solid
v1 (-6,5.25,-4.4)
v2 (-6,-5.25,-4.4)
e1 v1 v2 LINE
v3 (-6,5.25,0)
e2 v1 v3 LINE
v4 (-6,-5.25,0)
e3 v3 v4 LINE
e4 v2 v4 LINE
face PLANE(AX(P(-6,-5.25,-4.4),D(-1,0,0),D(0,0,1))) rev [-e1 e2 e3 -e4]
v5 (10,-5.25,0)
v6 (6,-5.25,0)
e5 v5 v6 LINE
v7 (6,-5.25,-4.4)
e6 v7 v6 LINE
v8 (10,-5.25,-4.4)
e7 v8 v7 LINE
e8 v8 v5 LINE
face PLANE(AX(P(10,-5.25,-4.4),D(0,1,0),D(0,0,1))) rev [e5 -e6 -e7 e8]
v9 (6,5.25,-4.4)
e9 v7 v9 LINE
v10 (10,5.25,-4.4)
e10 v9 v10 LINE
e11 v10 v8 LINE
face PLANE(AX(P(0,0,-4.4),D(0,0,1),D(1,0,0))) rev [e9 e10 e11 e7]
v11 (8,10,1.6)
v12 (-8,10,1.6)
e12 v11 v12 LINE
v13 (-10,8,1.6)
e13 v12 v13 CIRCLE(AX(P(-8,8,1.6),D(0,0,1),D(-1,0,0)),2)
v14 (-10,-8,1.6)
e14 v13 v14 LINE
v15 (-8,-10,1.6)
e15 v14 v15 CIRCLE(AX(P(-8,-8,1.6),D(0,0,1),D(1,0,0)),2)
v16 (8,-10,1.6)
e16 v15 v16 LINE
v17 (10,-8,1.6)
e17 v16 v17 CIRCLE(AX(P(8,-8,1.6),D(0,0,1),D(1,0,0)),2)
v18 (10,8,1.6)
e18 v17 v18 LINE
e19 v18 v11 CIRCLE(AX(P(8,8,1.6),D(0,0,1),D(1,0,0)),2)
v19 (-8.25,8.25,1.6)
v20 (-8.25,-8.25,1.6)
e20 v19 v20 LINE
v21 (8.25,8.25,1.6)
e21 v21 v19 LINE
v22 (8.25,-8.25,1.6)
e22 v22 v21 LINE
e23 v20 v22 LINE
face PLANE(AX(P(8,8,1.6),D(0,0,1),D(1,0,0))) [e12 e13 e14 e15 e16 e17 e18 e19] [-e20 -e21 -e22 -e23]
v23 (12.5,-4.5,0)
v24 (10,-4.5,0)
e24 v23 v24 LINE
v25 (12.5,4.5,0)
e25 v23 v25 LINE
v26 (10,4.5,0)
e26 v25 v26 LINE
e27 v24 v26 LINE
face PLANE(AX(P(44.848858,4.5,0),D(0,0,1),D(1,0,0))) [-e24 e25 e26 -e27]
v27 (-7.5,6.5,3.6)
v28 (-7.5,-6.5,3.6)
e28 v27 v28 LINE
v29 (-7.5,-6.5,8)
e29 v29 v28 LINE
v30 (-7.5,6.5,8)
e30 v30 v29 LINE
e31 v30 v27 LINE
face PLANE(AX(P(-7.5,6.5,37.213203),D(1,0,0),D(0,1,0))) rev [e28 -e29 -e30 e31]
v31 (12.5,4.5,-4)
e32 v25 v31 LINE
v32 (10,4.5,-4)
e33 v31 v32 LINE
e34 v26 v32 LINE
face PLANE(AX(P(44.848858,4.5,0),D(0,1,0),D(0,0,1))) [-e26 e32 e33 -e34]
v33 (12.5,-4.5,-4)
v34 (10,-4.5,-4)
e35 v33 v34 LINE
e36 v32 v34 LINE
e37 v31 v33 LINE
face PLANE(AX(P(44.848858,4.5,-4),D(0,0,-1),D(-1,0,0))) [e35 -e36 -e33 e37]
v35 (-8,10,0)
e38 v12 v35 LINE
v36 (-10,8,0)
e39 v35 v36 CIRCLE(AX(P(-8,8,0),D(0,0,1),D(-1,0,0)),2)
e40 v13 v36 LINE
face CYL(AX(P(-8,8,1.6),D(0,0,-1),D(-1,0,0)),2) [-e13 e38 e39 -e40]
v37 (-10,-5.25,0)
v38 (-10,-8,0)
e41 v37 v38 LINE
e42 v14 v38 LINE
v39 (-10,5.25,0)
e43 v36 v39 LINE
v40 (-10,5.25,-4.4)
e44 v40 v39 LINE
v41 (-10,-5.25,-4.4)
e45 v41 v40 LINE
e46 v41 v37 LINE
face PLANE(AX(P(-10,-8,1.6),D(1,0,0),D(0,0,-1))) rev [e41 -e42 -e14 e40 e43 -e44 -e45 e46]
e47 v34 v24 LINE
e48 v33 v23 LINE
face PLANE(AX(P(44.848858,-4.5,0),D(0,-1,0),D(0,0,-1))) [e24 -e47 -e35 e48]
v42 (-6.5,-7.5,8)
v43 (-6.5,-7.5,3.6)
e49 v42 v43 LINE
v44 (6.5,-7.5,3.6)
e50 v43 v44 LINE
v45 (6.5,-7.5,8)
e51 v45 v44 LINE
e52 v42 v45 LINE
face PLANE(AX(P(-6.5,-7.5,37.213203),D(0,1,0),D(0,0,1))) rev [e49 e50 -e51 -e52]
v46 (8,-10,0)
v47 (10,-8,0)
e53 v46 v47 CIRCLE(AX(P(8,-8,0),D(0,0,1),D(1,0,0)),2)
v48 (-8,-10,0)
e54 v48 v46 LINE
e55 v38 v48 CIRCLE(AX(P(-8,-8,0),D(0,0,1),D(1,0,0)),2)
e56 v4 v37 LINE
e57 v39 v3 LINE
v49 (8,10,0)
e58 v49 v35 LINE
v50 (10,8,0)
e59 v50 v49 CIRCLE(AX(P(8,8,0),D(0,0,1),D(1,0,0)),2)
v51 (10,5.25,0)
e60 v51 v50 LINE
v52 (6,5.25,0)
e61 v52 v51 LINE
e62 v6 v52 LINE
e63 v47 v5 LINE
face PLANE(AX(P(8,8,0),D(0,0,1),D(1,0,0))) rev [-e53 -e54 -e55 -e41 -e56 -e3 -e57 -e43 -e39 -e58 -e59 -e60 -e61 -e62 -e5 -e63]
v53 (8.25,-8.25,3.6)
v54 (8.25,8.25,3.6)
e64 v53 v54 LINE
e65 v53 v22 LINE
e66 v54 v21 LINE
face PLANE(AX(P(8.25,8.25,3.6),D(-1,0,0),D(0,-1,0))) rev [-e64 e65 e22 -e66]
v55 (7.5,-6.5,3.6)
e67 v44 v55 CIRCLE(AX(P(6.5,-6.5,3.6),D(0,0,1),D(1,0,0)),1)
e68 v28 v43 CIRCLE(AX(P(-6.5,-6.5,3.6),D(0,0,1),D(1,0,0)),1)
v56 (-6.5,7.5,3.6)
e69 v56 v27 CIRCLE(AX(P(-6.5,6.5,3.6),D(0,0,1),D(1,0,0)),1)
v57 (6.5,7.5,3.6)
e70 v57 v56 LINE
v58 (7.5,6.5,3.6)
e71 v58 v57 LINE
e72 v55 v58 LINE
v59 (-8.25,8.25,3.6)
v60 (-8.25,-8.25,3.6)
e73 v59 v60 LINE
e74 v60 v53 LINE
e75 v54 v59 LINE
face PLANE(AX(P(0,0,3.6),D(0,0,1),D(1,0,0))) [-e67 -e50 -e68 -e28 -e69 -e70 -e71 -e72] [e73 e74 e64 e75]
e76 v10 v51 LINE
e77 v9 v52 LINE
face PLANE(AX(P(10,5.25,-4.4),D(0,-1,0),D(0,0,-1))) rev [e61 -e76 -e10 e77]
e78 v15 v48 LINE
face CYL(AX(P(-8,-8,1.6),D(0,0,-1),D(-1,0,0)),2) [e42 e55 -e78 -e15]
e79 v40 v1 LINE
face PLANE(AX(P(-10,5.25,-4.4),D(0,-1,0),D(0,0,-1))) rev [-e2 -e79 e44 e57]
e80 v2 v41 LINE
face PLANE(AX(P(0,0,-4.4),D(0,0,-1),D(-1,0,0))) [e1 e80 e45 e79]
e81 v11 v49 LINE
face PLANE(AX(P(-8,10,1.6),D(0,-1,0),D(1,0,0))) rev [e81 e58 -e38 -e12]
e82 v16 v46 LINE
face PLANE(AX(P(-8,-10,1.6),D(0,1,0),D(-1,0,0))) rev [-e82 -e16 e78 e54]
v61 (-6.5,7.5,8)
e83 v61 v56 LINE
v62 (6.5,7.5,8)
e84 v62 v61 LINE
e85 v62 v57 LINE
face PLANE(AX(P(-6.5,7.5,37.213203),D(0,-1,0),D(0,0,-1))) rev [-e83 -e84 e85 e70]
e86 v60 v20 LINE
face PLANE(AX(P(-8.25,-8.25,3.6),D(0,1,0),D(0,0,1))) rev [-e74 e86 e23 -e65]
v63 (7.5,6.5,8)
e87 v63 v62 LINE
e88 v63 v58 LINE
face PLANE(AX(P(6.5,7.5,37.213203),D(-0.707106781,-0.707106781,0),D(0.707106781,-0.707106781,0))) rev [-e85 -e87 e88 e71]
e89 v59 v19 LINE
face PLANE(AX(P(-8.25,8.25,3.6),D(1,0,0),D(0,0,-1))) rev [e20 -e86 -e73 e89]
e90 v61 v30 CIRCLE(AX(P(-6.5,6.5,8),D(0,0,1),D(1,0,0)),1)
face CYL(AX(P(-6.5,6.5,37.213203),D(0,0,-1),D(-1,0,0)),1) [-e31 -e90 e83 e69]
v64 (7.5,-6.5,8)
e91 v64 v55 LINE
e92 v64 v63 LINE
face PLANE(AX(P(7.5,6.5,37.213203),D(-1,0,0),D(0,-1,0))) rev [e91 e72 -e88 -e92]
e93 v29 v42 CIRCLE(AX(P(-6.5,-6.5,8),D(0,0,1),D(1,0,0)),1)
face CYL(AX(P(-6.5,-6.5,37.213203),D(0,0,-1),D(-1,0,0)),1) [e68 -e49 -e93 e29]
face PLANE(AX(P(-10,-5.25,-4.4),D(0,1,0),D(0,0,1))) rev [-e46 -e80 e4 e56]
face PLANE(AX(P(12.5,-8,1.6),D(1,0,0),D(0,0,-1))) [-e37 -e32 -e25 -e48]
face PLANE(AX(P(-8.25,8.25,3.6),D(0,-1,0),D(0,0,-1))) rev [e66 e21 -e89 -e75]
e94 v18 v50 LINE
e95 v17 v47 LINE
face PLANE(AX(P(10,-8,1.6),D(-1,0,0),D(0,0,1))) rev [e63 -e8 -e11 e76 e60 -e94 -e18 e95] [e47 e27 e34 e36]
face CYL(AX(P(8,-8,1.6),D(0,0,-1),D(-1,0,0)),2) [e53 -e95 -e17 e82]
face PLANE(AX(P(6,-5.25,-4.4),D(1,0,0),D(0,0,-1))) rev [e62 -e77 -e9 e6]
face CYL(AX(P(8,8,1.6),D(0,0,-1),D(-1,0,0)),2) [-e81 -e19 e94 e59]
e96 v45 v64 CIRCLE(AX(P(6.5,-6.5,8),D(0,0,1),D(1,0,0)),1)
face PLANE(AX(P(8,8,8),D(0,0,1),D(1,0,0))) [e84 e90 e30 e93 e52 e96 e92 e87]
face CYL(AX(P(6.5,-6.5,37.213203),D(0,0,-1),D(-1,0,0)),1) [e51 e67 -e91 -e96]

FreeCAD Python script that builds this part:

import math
import FreeCAD as App
import Part
import Sketcher
Q = App.Units.Quantity


def add_polygon(sketch, points):
    """Adds a closed chain of lines whose ends are joined by coincident constraints."""
    first, n = sketch.GeometryCount, len(points)
    for a, b in zip(points, points[1:] + points[:1]):
        sketch.addGeometry(Part.LineSegment(App.Vector(*a, 0), App.Vector(*b, 0)), False)
    for i in range(n):
        sketch.addConstraint(Sketcher.Constraint("Coincident", first + i, 2, first + (i + 1) % n, 1))

doc = App.newDocument("Part")
body = doc.addObject("PartDesign::Body", "Body")

sketch1 = body.newObject("Sketcher::SketchObject", "Sketch")
sketch1.AttachmentSupport = (doc.getObject("XY_Plane"), [""])
sketch1.MapMode = "FlatFace"
sketch1.addGeometry([
    Part.LineSegment(App.Vector(-10, 8, 0), App.Vector(-10, -8, 0)),
    Part.ArcOfCircle(Part.Circle(App.Vector(-8, -8, 0), App.Vector(0, 0, 1), 2), math.radians(-180), math.radians(-90)),
    Part.LineSegment(App.Vector(-8, -10, 0), App.Vector(8, -10, 0)),
    Part.ArcOfCircle(Part.Circle(App.Vector(8, -8, 0), App.Vector(0, 0, 1), 2), math.radians(-90), math.radians(0)),
    Part.LineSegment(App.Vector(10, -8, 0), App.Vector(10, 8, 0)),
    Part.ArcOfCircle(Part.Circle(App.Vector(8, 8, 0), App.Vector(0, 0, 1), 2), math.radians(0), math.radians(90)),
    Part.LineSegment(App.Vector(8, 10, 0), App.Vector(-8, 10, 0)),
    Part.ArcOfCircle(Part.Circle(App.Vector(-8, 8, 0), App.Vector(0, 0, 1), 2), math.radians(90), math.radians(180)),
], False)
sketch1.addConstraint([
    Sketcher.Constraint("Tangent", 0, 2, 1, 1),
    Sketcher.Constraint("Tangent", 1, 2, 2, 1),
    Sketcher.Constraint("Tangent", 2, 2, 3, 1),
    Sketcher.Constraint("Tangent", 3, 2, 4, 1),
    Sketcher.Constraint("Tangent", 4, 2, 5, 1),
    Sketcher.Constraint("Tangent", 5, 2, 6, 1),
    Sketcher.Constraint("Tangent", 6, 2, 7, 1),
    Sketcher.Constraint("Tangent", 7, 2, 0, 1),
    Sketcher.Constraint("Vertical", 0),
    Sketcher.Constraint("Horizontal", 2),
    Sketcher.Constraint("Vertical", 4),
    Sketcher.Constraint("Horizontal", 6),
    Sketcher.Constraint("Equal", 1, 3),
    Sketcher.Constraint("Equal", 3, 5),
    Sketcher.Constraint("Equal", 5, 7),
    Sketcher.Constraint("Symmetric", 1, 3, 5, 3, -1, 1),
    Sketcher.Constraint("Equal", 6, 0),
    Sketcher.Constraint("Radius", 1, Q("2 mm")),
    Sketcher.Constraint("DistanceX", 2, 1, 2, 2, Q("16 mm")),
])
pad1 = body.newObject("PartDesign::Pad", "Pad")
pad1.Profile = sketch1
pad1.Length = 1.6

sketch2 = body.newObject("Sketcher::SketchObject", "Sketch001")
sketch2.AttachmentSupport = (doc.getObject("XY_Plane"), [""])
sketch2.MapMode = "FlatFace"
sketch2.AttachmentOffset = App.Placement(App.Vector(0, 0, 1.6), App.Rotation())
add_polygon(sketch2, [(-8, 8), (-8, -8), (8, -8), (8, 8)])
sketch2.addConstraint([
    Sketcher.Constraint("Vertical", 0),
    Sketcher.Constraint("Horizontal", 1),
    Sketcher.Constraint("Vertical", 2),
    Sketcher.Constraint("Horizontal", 3),
    Sketcher.Constraint("Symmetric", 0, 2, 2, 2, -1, 1),
    Sketcher.Constraint("Equal", 3, 0),
    Sketcher.Constraint("DistanceX", 1, 1, 1, 2, Q("16.5 mm")),
])
pad2 = body.newObject("PartDesign::Pad", "Pad001")
pad2.Profile = sketch2
pad2.Length = 2

sketch3 = body.newObject("Sketcher::SketchObject", "Sketch002")
sketch3.AttachmentSupport = (doc.getObject("XY_Plane"), [""])
sketch3.MapMode = "FlatFace"
sketch3.AttachmentOffset = App.Placement(App.Vector(0, 0, 3.6), App.Rotation())
sketch3.addGeometry([
    Part.LineSegment(App.Vector(7.5, 6.5, 0), App.Vector(6.5, 7.5, 0)),
    Part.LineSegment(App.Vector(6.5, 7.5, 0), App.Vector(-6.5, 7.5, 0)),
    Part.ArcOfCircle(Part.Circle(App.Vector(-6.5, 6.5, 0), App.Vector(0, 0, 1), 1), math.radians(90), math.radians(180)),
    Part.LineSegment(App.Vector(-7.5, 6.5, 0), App.Vector(-7.5, -6.5, 0)),
    Part.ArcOfCircle(Part.Circle(App.Vector(-6.5, -6.5, 0), App.Vector(0, 0, 1), 1), math.radians(-180), math.radians(-90)),
    Part.LineSegment(App.Vector(-6.5, -7.5, 0), App.Vector(6.5, -7.5, 0)),
    Part.ArcOfCircle(Part.Circle(App.Vector(6.5, -6.5, 0), App.Vector(0, 0, 1), 1), math.radians(-90), math.radians(0)),
    Part.LineSegment(App.Vector(7.5, -6.5, 0), App.Vector(7.5, 6.5, 0)),
], False)
sketch3.addConstraint([
    Sketcher.Constraint("Coincident", 0, 2, 1, 1),
    Sketcher.Constraint("Tangent", 1, 2, 2, 1),
    Sketcher.Constraint("Tangent", 2, 2, 3, 1),
    Sketcher.Constraint("Tangent", 3, 2, 4, 1),
    Sketcher.Constraint("Tangent", 4, 2, 5, 1),
    Sketcher.Constraint("Tangent", 5, 2, 6, 1),
    Sketcher.Constraint("Tangent", 6, 2, 7, 1),
    Sketcher.Constraint("Coincident", 7, 2, 0, 1),
    Sketcher.Constraint("Horizontal", 1),
    Sketcher.Constraint("Vertical", 3),
    Sketcher.Constraint("Horizontal", 5),
    Sketcher.Constraint("Vertical", 7),
    Sketcher.Constraint("Equal", 2, 4),
    Sketcher.Constraint("Equal", 4, 6),
    Sketcher.Constraint("Symmetric", 2, 3, 6, 3, -1, 1),
    Sketcher.Constraint("Horizontal", 2, 2, 7, 2),
    Sketcher.Constraint("Vertical", 6, 3, 0, 2),
    Sketcher.Constraint("Equal", 5, 3),
    Sketcher.Constraint("Radius", 2, Q("1 mm")),
    Sketcher.Constraint("DistanceX", 1, 2, 1, 1, Q("13 mm")),
])
pad3 = body.newObject("PartDesign::Pad", "Pad002")
pad3.Profile = sketch3
pad3.Length = 4.4

sketch4 = body.newObject("Sketcher::SketchObject", "Sketch003")
sketch4.AttachmentSupport = (doc.getObject("XY_Plane"), [""])
sketch4.MapMode = "FlatFace"
add_polygon(sketch4, [(-10, -5.2), (-10, 5.2), (-6, 5.2), (-6, -5.2)])
add_polygon(sketch4, [(6, -5.2), (6, 5.2), (10, 5.2), (10, -5.2)])
sketch4.addConstraint([
    Sketcher.Constraint("Vertical", 0),
    Sketcher.Constraint("Horizontal", 1),
    Sketcher.Constraint("Vertical", 2),
    Sketcher.Constraint("Horizontal", 3),
    Sketcher.Constraint("Vertical", 4),
    Sketcher.Constraint("Horizontal", 5),
    Sketcher.Constraint("Vertical", 6),
    Sketcher.Constraint("Horizontal", 7),
    Sketcher.Constraint("Symmetric", 2, 2, 4, 2, -1, 1),
    Sketcher.Constraint("Symmetric", 0, 2, 6, 2, -1, 1),
    Sketcher.Constraint("Horizontal", 1, 2, 4, 2),
    Sketcher.Constraint("DistanceX", 1, 1, 1, 2, Q("4 mm")),
    Sketcher.Constraint("DistanceY", 0, 1, 0, 2, Q("10.5 mm")),
    Sketcher.Constraint("DistanceX", 0, 2, -1, 1, Q("10 mm")),
])
pad4 = body.newObject("PartDesign::Pad", "Pad003")
pad4.Profile = sketch4
pad4.Length = 4.4
pad4.Reversed = True

sketch5 = body.newObject("Sketcher::SketchObject", "Sketch004")
sketch5.AttachmentSupport = (doc.getObject("YZ_Plane"), [""])
sketch5.MapMode = "FlatFace"
sketch5.AttachmentOffset = App.Placement(App.Vector(0, 0, 10), App.Rotation())
add_polygon(sketch5, [(4.5, 0), (4.5, -4), (-4.5, -4), (-4.5, 0)])
sketch5.addConstraint([
    Sketcher.Constraint("Vertical", 0),
    Sketcher.Constraint("Horizontal", 1),
    Sketcher.Constraint("Vertical", 2),
    Sketcher.Constraint("Horizontal", 3),
    Sketcher.Constraint("Symmetric", 2, 2, 3, 2, -1, 1),
    Sketcher.Constraint("DistanceX", 1, 2, 1, 1, Q("9 mm")),
    Sketcher.Constraint("DistanceY", 0, 2, 0, 1, Q("4 mm")),
])
pad5 = body.newObject("PartDesign::Pad", "Pad004")
pad5.Profile = sketch5
pad5.Length = 2.5

doc.recompute()
